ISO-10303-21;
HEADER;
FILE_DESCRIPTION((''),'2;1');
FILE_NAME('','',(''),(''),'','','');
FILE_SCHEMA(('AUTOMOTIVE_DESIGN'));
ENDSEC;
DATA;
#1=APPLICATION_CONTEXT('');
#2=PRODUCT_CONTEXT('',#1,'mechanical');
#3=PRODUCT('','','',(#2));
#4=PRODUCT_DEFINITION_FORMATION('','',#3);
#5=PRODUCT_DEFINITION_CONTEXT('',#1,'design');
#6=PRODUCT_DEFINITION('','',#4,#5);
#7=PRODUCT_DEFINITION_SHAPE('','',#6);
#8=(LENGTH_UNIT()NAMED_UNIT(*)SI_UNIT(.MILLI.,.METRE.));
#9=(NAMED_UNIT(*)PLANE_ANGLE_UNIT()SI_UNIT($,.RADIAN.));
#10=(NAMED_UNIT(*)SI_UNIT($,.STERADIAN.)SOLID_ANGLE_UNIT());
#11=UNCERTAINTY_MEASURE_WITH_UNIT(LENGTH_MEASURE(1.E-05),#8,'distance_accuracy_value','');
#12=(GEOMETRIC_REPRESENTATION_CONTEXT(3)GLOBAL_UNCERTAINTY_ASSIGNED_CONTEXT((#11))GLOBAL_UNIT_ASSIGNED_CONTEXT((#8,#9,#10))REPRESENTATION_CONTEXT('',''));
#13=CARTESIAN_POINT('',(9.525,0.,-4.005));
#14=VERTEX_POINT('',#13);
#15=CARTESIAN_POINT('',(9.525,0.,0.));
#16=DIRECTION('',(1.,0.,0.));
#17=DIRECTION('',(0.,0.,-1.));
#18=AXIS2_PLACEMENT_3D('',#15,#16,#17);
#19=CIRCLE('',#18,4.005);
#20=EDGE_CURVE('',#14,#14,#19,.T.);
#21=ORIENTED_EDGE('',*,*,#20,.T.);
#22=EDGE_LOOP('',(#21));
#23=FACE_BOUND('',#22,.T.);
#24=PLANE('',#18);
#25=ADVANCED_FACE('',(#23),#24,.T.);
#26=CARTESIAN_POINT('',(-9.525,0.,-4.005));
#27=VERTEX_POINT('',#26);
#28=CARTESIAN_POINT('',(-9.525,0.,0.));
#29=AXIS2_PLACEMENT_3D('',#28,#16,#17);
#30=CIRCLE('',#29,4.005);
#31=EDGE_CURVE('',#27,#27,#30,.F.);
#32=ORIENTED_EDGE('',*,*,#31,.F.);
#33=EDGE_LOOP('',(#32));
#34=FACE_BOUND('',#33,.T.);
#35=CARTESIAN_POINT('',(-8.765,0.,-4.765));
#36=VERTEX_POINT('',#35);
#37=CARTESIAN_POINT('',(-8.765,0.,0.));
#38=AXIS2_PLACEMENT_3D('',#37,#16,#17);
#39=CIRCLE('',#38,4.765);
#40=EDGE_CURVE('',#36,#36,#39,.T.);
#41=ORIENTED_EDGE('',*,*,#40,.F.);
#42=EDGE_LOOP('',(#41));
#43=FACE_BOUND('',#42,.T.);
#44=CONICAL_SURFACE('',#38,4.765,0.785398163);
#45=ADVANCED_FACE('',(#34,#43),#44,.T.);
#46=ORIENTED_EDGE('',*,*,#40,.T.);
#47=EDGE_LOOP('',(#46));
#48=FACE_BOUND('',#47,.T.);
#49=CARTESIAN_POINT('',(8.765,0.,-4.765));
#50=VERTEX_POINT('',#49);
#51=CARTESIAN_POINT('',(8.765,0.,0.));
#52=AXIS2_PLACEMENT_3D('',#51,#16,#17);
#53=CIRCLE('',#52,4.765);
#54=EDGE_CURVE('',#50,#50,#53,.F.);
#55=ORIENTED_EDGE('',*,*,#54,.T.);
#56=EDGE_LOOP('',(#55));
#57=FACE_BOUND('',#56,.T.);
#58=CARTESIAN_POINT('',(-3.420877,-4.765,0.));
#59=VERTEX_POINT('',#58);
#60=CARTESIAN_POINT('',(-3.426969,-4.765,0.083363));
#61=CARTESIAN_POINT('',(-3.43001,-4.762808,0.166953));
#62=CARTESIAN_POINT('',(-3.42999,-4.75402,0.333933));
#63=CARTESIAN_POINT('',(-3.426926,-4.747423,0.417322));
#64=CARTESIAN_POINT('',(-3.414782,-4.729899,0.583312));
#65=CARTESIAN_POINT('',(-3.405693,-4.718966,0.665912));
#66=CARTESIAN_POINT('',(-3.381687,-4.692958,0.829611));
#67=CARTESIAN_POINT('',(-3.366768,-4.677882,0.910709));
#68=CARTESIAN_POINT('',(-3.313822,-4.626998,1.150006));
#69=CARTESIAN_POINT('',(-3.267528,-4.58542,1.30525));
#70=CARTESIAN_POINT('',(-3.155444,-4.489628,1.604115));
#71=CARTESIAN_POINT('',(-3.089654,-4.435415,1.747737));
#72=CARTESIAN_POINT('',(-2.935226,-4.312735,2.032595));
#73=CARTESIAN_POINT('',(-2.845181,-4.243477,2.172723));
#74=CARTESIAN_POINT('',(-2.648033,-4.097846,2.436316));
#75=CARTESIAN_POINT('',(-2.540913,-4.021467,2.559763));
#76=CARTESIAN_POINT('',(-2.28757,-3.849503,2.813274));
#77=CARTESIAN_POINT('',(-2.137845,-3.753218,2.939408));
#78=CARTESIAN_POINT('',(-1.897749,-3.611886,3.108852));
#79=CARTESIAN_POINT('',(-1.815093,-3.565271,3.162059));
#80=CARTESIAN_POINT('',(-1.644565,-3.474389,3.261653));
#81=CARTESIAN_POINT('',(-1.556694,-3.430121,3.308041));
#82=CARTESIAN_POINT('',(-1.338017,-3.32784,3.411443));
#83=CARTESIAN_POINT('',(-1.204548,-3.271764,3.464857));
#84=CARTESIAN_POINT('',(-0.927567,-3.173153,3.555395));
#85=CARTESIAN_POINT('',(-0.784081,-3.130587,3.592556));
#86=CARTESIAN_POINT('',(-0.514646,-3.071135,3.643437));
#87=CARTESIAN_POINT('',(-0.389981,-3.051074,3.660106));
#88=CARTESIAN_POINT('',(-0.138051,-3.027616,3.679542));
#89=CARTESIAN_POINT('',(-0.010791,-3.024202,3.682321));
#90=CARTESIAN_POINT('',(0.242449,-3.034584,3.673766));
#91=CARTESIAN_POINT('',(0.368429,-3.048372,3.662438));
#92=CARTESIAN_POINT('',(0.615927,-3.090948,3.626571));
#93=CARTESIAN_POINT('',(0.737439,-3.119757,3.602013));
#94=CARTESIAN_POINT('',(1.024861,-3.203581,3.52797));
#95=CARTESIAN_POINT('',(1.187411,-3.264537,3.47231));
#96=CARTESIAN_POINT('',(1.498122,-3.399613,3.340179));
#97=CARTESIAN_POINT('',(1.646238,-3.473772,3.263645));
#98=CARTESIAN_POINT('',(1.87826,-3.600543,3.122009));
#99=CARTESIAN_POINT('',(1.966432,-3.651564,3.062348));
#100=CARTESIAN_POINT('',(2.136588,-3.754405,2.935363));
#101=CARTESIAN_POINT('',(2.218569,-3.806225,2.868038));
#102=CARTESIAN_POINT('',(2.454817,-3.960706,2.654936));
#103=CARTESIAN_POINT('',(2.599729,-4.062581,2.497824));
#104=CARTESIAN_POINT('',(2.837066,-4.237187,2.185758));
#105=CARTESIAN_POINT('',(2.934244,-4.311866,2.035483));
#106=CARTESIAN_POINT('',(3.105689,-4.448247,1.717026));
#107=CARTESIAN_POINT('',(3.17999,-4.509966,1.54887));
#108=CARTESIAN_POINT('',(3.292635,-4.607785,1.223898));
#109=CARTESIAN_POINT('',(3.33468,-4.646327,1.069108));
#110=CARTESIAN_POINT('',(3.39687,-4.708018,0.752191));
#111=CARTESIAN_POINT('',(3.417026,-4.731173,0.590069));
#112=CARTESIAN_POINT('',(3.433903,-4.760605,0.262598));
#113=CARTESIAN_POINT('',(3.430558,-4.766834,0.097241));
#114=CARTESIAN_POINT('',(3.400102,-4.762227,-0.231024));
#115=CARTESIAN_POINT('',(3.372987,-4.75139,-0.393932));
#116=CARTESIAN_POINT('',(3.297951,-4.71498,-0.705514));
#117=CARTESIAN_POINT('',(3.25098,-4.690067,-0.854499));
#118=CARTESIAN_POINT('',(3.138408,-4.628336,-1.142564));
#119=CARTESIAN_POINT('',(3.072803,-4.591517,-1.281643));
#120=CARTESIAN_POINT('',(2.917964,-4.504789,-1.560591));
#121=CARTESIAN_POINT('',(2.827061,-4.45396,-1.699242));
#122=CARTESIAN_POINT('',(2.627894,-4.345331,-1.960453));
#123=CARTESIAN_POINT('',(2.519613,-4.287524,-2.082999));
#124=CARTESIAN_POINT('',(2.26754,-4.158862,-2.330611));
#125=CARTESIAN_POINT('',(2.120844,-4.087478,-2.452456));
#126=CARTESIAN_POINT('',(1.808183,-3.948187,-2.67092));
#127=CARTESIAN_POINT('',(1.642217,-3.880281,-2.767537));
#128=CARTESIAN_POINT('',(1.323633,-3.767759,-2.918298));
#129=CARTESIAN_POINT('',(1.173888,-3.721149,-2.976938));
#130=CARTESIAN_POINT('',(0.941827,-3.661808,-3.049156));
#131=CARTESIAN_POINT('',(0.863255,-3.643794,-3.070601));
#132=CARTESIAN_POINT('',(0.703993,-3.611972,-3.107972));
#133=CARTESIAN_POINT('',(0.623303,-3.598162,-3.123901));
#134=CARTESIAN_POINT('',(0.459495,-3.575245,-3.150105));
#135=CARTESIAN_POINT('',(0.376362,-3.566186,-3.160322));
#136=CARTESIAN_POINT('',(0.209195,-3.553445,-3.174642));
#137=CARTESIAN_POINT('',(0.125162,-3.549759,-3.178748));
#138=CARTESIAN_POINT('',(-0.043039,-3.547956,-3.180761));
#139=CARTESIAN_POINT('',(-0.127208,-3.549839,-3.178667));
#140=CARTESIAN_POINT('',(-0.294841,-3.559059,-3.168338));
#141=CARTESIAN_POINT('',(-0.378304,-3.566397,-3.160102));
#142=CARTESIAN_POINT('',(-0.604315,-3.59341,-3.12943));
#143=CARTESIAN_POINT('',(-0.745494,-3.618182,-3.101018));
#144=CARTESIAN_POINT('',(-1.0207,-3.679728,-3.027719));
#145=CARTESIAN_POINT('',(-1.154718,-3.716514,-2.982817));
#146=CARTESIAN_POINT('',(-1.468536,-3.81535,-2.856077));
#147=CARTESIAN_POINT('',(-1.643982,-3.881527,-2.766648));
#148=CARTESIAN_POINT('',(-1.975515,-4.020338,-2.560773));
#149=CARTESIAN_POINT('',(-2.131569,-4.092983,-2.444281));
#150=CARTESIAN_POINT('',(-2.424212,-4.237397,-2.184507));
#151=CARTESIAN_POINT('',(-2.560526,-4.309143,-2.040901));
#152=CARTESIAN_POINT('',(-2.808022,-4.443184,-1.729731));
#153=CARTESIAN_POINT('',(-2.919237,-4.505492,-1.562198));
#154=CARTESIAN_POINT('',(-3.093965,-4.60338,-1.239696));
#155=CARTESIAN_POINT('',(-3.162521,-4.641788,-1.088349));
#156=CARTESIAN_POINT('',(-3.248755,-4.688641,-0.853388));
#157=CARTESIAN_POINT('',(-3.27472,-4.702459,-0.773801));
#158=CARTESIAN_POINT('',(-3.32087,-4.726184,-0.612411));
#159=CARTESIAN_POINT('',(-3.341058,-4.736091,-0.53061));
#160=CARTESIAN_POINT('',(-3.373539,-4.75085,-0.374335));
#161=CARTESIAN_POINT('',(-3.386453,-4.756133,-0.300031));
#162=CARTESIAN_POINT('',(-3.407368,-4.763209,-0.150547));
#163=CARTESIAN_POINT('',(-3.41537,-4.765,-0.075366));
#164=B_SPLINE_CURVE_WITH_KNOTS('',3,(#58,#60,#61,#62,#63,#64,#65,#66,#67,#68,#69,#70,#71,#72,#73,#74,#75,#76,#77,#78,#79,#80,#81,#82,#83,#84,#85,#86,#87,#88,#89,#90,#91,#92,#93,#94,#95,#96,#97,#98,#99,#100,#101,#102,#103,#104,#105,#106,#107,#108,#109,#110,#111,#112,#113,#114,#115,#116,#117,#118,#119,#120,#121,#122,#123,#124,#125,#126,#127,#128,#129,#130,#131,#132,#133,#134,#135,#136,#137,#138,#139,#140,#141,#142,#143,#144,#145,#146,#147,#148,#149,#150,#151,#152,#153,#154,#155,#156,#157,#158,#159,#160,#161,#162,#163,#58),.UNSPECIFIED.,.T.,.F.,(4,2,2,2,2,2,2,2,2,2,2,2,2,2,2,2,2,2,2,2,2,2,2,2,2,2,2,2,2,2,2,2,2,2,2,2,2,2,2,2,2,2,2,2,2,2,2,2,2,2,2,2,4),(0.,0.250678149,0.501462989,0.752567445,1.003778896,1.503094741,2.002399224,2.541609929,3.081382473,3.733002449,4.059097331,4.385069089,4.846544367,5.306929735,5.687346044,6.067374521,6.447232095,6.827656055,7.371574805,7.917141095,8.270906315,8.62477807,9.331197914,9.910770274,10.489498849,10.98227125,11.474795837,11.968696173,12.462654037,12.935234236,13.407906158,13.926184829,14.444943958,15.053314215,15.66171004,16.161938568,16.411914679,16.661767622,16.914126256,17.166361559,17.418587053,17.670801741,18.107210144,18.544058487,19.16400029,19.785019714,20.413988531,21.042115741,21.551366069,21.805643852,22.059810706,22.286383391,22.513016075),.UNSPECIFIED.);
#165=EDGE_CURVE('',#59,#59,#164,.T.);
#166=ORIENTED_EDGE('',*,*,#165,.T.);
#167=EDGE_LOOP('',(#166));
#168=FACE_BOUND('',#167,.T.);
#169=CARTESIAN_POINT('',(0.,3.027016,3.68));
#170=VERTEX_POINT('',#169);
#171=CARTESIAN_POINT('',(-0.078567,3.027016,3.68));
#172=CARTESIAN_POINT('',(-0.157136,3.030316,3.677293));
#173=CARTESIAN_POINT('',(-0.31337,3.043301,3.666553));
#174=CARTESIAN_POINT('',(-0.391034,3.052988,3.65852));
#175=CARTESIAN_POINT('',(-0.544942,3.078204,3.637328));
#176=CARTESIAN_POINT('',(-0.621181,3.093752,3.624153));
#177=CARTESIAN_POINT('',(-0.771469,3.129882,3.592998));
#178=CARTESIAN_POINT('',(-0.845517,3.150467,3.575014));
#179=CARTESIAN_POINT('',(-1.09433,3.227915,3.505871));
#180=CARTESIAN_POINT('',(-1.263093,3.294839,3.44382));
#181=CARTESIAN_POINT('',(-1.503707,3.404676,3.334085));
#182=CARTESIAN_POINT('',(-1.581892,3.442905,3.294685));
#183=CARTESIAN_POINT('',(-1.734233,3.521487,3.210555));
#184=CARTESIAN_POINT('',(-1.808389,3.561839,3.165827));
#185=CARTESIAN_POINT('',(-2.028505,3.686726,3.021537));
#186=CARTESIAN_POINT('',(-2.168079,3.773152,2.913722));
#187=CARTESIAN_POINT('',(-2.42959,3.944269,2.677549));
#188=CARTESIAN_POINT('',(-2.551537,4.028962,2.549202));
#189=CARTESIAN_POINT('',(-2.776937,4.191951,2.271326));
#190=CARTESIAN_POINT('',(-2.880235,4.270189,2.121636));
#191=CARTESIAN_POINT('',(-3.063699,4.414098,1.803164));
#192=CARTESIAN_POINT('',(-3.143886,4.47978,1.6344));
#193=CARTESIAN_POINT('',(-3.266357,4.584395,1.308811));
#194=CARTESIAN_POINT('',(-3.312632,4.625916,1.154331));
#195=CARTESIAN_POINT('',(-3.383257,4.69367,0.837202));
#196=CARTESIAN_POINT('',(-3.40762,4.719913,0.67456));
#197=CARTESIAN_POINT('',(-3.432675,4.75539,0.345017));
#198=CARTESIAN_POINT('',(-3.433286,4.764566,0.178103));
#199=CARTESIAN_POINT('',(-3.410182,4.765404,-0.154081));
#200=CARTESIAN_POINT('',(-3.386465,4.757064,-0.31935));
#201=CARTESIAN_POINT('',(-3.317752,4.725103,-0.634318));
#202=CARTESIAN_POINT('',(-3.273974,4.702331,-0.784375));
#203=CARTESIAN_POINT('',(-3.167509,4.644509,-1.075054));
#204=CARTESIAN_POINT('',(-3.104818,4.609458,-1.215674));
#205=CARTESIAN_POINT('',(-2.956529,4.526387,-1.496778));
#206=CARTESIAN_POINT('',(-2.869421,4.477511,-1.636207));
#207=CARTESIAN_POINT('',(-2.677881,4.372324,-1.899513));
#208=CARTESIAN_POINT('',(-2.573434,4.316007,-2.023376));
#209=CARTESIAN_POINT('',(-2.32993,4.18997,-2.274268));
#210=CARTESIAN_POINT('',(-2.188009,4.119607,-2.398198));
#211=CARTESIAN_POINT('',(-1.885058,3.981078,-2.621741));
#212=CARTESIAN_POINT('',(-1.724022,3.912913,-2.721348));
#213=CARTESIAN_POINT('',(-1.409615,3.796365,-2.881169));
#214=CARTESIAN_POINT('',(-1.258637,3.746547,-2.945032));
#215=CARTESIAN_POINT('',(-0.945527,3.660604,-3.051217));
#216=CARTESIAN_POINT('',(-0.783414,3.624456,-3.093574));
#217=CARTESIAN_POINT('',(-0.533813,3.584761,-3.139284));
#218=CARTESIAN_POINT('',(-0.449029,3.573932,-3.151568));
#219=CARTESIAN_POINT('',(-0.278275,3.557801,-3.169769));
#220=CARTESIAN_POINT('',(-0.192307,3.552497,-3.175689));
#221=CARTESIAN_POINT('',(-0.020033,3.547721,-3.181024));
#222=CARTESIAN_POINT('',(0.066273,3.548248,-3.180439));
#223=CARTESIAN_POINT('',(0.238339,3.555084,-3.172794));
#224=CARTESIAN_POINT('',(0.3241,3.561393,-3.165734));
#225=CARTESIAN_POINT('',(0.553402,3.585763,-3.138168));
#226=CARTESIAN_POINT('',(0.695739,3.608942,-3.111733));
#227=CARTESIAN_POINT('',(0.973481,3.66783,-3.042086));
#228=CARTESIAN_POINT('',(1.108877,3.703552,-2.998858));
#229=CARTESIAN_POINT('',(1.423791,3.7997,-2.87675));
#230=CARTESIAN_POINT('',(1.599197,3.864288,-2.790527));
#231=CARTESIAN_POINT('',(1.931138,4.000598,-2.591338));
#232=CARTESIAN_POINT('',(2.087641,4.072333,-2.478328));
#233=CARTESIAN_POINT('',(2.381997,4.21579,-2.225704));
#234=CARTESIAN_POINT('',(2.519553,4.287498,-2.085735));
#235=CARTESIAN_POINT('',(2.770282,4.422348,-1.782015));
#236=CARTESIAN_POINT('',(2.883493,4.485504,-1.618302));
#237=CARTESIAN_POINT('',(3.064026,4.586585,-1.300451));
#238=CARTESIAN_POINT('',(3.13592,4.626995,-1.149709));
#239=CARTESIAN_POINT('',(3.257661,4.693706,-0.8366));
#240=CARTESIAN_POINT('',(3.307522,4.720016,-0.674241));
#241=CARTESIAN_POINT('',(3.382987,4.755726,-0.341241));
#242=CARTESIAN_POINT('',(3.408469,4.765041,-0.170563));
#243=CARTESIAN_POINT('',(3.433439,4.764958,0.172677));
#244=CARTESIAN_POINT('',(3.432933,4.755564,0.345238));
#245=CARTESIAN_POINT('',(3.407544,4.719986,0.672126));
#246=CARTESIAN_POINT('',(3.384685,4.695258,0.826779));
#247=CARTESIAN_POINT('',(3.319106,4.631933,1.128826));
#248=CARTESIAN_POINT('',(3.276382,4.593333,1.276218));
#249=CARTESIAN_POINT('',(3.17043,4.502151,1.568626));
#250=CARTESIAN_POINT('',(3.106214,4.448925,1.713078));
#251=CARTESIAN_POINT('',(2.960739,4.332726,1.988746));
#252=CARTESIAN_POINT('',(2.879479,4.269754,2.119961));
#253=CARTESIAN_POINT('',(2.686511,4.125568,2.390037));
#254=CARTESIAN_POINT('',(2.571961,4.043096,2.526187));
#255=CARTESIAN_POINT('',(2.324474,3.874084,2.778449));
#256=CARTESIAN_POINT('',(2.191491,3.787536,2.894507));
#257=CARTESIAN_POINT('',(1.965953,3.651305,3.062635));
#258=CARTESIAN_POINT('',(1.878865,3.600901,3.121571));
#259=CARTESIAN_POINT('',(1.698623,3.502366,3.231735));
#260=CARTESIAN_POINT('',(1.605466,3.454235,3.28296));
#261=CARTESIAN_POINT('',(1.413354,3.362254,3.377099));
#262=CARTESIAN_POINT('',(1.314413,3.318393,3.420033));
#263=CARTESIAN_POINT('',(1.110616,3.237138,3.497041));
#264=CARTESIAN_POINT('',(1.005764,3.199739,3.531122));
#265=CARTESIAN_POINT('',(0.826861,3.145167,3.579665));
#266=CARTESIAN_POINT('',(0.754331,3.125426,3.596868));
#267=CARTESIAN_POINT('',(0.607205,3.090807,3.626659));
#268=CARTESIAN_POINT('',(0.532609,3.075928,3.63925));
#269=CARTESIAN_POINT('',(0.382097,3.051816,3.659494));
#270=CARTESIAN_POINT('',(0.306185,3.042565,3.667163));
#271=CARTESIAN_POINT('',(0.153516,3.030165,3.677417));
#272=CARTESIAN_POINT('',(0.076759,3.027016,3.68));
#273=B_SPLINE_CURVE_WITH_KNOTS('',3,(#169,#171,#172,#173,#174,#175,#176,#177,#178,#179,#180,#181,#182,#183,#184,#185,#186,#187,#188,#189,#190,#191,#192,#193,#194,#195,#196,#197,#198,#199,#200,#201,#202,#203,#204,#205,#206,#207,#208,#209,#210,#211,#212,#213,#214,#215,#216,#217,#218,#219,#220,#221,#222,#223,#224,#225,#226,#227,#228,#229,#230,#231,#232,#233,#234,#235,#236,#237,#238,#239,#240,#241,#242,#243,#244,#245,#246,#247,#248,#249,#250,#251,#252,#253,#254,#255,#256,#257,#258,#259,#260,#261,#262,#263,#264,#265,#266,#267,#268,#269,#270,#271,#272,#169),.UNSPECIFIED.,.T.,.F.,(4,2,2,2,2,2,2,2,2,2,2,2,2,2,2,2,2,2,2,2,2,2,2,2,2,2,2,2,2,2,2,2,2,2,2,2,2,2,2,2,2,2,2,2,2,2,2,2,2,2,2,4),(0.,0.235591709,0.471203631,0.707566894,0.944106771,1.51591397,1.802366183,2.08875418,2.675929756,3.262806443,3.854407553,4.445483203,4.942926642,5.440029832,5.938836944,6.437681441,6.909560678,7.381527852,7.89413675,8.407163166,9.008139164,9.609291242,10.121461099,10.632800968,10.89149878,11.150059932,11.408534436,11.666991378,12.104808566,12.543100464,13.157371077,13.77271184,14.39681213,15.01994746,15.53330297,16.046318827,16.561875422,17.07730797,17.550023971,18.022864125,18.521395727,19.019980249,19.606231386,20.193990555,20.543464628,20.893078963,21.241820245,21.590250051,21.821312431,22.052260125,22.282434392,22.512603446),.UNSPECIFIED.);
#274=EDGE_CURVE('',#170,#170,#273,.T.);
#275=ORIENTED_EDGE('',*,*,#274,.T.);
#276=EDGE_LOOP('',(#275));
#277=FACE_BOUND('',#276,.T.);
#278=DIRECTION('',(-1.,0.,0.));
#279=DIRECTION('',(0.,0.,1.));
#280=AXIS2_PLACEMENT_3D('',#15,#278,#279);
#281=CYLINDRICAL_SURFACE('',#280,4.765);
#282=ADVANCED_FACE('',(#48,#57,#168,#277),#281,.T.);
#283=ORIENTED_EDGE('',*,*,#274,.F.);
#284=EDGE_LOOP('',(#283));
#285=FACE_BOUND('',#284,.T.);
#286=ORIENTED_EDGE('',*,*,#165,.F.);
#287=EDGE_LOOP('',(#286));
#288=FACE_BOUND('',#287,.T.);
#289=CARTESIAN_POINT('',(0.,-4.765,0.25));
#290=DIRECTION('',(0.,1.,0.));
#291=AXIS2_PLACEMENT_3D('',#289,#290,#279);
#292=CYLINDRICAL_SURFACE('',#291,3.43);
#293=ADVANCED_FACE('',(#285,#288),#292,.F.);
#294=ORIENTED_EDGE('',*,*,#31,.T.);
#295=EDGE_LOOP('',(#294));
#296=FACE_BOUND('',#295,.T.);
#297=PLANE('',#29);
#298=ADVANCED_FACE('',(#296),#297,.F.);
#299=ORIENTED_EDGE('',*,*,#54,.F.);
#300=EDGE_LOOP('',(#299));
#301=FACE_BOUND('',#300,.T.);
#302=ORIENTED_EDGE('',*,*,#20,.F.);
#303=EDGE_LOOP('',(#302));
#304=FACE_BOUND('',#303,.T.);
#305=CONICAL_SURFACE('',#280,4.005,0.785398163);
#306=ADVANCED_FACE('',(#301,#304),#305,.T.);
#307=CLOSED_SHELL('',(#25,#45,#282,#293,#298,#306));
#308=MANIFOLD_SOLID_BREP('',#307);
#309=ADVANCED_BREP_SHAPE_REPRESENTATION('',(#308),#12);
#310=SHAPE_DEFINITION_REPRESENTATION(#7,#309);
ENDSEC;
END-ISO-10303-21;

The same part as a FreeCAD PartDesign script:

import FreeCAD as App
import Part
import Sketcher

V = App.Vector
Q = App.Units.Quantity


def edges_at(feature, points):
    """Names of the edges that pass closest to the given points."""
    edges = feature.Shape.Edges
    near = lambda p: min(range(len(edges)), key=lambda i: edges[i].distToShape(Part.Vertex(*p))[0])
    return sorted({f"Edge{near(p) + 1}" for p in points})

doc = App.newDocument("Part")
params = doc.addObject("Spreadsheet::Sheet", "Params")
for row, (alias, value) in enumerate([
    ("pad1_length", "0.75 in"),
    ("chamfer_size", "0.76 mm"),
], start=1):
    params.set(f"A{row}", alias)
    params.set(f"B{row}", "=" + value)
    params.setAlias(f"B{row}", alias)

body = doc.addObject("PartDesign::Body", "Body")

# Sketch on YZ plane
sketch1 = body.newObject("Sketcher::SketchObject", "Sketch")
sketch1.AttachmentSupport = (doc.getObject("YZ_Plane"), [""])
sketch1.MapMode = "FlatFace"
sketch1.addGeometry(Part.Circle(V(0, 0, 0), V(0, 0, 1), 4.765), False)
sketch1.addConstraint(Sketcher.Constraint("Coincident", 0, 3, -1, 1))
sketch1.addConstraint(Sketcher.Constraint("Diameter", 0, Q("9.53 mm")))
pad1 = body.newObject("PartDesign::Pad", "Pad")
pad1.Profile = sketch1
pad1.setExpression("Length", "Params.pad1_length")
pad1.Midplane = True
doc.recompute()

chamfer = body.newObject("PartDesign::Chamfer", "Chamfer")
chamfer.Base = (pad1, edges_at(pad1, [(-9.525, 0, 4.765), (9.525, 0, 4.765)]))
chamfer.setExpression("Size", "Params.chamfer_size")

# Sketch on XZ plane
sketch2 = body.newObject("Sketcher::SketchObject", "Sketch001")
sketch2.AttachmentSupport = (doc.getObject("XZ_Plane"), [""])
sketch2.MapMode = "FlatFace"
sketch2.addGeometry(Part.Circle(V(0, 0.25, 0), V(0, 0, 1), 3.43), False)
sketch2.addConstraint(Sketcher.Constraint("PointOnObject", 0, 3, -2))
sketch2.addConstraint(Sketcher.Constraint("Diameter", 0, Q("6.86 mm")))
sketch2.addConstraint(Sketcher.Constraint("DistanceY", -1, 1, 0, 3, Q("0.25 mm")))
pocket1 = body.newObject("PartDesign::Pocket", "Pocket")
pocket1.Profile = sketch2
pocket1.Type = "ThroughAll"
pocket1.Midplane = True

doc.recompute()
